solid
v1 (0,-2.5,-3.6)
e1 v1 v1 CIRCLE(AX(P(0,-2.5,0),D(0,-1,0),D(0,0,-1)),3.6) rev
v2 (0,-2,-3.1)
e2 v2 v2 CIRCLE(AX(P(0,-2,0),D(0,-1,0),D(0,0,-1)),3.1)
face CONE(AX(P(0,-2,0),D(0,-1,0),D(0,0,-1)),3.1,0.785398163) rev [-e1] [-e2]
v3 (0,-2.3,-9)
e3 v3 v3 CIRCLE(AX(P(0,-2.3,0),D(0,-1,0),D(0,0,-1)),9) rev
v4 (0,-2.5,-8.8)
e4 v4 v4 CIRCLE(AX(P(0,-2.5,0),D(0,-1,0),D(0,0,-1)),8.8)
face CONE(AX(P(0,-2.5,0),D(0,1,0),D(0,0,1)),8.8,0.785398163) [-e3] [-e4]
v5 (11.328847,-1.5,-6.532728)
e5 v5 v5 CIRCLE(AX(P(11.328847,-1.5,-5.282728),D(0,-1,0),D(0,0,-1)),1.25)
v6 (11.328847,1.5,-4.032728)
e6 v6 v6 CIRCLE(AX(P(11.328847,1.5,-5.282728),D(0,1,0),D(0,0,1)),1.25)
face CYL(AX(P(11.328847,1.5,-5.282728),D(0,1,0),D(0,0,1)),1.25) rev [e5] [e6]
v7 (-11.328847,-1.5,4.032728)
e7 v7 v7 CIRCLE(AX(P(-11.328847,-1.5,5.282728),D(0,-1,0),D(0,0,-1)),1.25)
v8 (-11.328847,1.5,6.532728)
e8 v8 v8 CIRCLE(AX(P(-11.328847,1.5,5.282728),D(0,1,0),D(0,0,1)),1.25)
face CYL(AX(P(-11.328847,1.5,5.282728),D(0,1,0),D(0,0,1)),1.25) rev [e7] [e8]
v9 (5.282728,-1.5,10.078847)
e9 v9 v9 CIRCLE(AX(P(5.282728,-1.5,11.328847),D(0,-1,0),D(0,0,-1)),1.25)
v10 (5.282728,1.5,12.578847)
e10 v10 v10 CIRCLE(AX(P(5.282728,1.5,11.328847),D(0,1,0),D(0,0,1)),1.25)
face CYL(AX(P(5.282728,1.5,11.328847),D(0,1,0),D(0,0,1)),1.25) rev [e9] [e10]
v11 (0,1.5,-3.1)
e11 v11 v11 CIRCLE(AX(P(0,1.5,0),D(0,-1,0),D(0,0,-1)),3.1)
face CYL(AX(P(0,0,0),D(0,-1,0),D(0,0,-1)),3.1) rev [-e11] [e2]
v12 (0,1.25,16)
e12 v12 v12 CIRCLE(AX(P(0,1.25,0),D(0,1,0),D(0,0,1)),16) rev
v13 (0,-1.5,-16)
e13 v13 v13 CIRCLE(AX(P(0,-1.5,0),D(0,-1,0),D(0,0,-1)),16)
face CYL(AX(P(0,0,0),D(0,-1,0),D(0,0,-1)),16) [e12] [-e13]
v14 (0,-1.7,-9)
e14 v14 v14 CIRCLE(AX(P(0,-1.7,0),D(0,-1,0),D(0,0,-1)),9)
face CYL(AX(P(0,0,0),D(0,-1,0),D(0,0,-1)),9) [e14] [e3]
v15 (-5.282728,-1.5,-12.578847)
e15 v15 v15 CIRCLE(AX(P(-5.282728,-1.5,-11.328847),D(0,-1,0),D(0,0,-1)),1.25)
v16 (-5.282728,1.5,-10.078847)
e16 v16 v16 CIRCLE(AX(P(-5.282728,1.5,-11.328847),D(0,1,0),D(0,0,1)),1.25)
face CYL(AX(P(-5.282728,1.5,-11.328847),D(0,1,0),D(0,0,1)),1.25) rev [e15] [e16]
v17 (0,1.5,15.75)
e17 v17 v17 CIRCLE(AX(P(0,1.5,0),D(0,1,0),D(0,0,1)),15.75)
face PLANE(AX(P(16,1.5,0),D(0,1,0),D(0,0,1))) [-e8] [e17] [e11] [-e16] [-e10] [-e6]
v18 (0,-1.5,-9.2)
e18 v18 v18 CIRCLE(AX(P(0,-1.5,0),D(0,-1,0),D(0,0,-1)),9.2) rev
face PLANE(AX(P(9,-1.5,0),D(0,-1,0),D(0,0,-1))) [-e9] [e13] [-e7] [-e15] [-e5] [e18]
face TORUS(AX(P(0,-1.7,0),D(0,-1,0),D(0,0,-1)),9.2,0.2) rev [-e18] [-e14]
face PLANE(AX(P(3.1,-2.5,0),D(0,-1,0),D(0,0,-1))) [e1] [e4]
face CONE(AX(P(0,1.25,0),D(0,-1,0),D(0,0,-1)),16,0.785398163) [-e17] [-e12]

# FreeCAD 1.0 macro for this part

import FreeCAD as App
import Part
import Sketcher
Q = App.Units.Quantity


def edges_at(feature, points):
    """Names of the edges that pass closest to the given points."""
    edges = feature.Shape.Edges
    near = lambda p: min(range(len(edges)), key=lambda i: edges[i].distToShape(Part.Vertex(*p))[0])
    return sorted({f"Edge{near(p) + 1}" for p in points})

doc = App.newDocument("Part")
body = doc.addObject("PartDesign::Body", "Body")

# Sketch on XY plane
sketch1 = body.newObject("Sketcher::SketchObject", "Sketch")
sketch1.AttachmentSupport = (doc.getObject("XY_Plane"), [""])
sketch1.MapMode = "FlatFace"
sketch1.addGeometry([
    Part.LineSegment(App.Vector(3.1, 1.5, 0), App.Vector(3.1, -2.5, 0)),  # 0
    Part.LineSegment(App.Vector(3.1, -2.5, 0), App.Vector(9, -2.5, 0)),  # 1
    Part.LineSegment(App.Vector(9, -2.5, 0), App.Vector(9, -1.5, 0)),  # 2
    Part.LineSegment(App.Vector(9, -1.5, 0), App.Vector(16, -1.5, 0)),  # 3
    Part.LineSegment(App.Vector(16, -1.5, 0), App.Vector(16, 1.5, 0)),  # 4
    Part.LineSegment(App.Vector(16, 1.5, 0), App.Vector(3.1, 1.5, 0)),  # 5
], False)
sketch1.addConstraint([
    Sketcher.Constraint("Coincident", 0, 2, 1, 1),
    Sketcher.Constraint("Coincident", 1, 2, 2, 1),
    Sketcher.Constraint("Coincident", 2, 2, 3, 1),
    Sketcher.Constraint("Coincident", 3, 2, 4, 1),
    Sketcher.Constraint("Coincident", 4, 2, 5, 1),
    Sketcher.Constraint("Coincident", 5, 2, 0, 1),
    Sketcher.Constraint("Vertical", 0),
    Sketcher.Constraint("Horizontal", 1),
    Sketcher.Constraint("Vertical", 2),
    Sketcher.Constraint("Horizontal", 3),
    Sketcher.Constraint("Vertical", 4),
    Sketcher.Constraint("Horizontal", 5),
    Sketcher.Constraint("DistanceX", 3, 1, 3, 2, Q("7 mm")),
    Sketcher.Constraint("DistanceY", 0, 2, 0, 1, Q("4 mm")),
    Sketcher.Constraint("DistanceY", 2, 1, 2, 2, Q("1 mm")),
    Sketcher.Constraint("DistanceX", 1, 1, 1, 2, Q("5.9 mm")),
    Sketcher.Constraint("DistanceX", -1, 1, 1, 2, Q("9 mm")),
    Sketcher.Constraint("DistanceY", 0, 2, -1, 1, Q("2.5 mm")),
])
revolution = body.newObject("PartDesign::Revolution", "Revolution")
revolution.Profile = sketch1
revolution.ReferenceAxis = (sketch1, ["V_Axis"])
revolution.Angle = 360
doc.recompute()

chamfer = body.newObject("PartDesign::Chamfer", "Chamfer")
chamfer.Base = (revolution, edges_at(revolution, [(-3.1, -2.5, 0)]))
chamfer.Size = 0.5

# Sketch on XZ plane
sketch2 = body.newObject("Sketcher::SketchObject", "Sketch001")
sketch2.AttachmentSupport = (doc.getObject("XZ_Plane"), [""])
sketch2.MapMode = "FlatFace"
sketch2.AttachmentOffset = App.Placement(App.Vector(0, 0, -1.5), App.Rotation())
sketch2.addGeometry(Part.Circle(App.Vector(11.328847, -5.282728, 0), App.Vector(0, 0, 1), 1.25), False)
sketch2.addConstraint([
    Sketcher.Constraint("Diameter", 0, Q("2.5 mm")),
    Sketcher.Constraint("DistanceY", 0, 3, -1, 1, Q("5.282728 mm")),
    Sketcher.Constraint("DistanceX", -1, 1, 0, 3, Q("11.328847 mm")),
])
doc.recompute()
hole = body.newObject("PartDesign::Hole", "Hole")
hole.Profile = sketch2
hole.ThreadType = "None"
hole.Diameter = 2.5
hole.DepthType = "Dimension"
hole.Depth = 3.001
hole.DrillPoint = "Flat"
hole.Reversed = True
doc.recompute()

polarpattern = body.newObject("PartDesign::PolarPattern", "PolarPattern")
polarpattern.Originals = [hole]
polarpattern.Axis = (doc.getObject("Y_Axis"), [""])
polarpattern.Angle = 360
polarpattern.Occurrences = 4
body.Tip = polarpattern
doc.recompute()

chamfer2 = body.newObject("PartDesign::Chamfer", "Chamfer001")
chamfer2.Base = (polarpattern, edges_at(polarpattern, [(-9, -2.5, 0)]))
chamfer2.Size = 0.2
doc.recompute()

chamfer3 = body.newObject("PartDesign::Chamfer", "Chamfer002")
chamfer3.Base = (chamfer2, edges_at(chamfer2, [(-16, 1.5, 0)]))
chamfer3.Size = 0.25
doc.recompute()

fillet = body.newObject("PartDesign::Fillet", "Fillet")
fillet.Base = (chamfer3, edges_at(chamfer3, [(-9, -1.5, 0)]))
fillet.Radius = 0.2

doc.recompute()
